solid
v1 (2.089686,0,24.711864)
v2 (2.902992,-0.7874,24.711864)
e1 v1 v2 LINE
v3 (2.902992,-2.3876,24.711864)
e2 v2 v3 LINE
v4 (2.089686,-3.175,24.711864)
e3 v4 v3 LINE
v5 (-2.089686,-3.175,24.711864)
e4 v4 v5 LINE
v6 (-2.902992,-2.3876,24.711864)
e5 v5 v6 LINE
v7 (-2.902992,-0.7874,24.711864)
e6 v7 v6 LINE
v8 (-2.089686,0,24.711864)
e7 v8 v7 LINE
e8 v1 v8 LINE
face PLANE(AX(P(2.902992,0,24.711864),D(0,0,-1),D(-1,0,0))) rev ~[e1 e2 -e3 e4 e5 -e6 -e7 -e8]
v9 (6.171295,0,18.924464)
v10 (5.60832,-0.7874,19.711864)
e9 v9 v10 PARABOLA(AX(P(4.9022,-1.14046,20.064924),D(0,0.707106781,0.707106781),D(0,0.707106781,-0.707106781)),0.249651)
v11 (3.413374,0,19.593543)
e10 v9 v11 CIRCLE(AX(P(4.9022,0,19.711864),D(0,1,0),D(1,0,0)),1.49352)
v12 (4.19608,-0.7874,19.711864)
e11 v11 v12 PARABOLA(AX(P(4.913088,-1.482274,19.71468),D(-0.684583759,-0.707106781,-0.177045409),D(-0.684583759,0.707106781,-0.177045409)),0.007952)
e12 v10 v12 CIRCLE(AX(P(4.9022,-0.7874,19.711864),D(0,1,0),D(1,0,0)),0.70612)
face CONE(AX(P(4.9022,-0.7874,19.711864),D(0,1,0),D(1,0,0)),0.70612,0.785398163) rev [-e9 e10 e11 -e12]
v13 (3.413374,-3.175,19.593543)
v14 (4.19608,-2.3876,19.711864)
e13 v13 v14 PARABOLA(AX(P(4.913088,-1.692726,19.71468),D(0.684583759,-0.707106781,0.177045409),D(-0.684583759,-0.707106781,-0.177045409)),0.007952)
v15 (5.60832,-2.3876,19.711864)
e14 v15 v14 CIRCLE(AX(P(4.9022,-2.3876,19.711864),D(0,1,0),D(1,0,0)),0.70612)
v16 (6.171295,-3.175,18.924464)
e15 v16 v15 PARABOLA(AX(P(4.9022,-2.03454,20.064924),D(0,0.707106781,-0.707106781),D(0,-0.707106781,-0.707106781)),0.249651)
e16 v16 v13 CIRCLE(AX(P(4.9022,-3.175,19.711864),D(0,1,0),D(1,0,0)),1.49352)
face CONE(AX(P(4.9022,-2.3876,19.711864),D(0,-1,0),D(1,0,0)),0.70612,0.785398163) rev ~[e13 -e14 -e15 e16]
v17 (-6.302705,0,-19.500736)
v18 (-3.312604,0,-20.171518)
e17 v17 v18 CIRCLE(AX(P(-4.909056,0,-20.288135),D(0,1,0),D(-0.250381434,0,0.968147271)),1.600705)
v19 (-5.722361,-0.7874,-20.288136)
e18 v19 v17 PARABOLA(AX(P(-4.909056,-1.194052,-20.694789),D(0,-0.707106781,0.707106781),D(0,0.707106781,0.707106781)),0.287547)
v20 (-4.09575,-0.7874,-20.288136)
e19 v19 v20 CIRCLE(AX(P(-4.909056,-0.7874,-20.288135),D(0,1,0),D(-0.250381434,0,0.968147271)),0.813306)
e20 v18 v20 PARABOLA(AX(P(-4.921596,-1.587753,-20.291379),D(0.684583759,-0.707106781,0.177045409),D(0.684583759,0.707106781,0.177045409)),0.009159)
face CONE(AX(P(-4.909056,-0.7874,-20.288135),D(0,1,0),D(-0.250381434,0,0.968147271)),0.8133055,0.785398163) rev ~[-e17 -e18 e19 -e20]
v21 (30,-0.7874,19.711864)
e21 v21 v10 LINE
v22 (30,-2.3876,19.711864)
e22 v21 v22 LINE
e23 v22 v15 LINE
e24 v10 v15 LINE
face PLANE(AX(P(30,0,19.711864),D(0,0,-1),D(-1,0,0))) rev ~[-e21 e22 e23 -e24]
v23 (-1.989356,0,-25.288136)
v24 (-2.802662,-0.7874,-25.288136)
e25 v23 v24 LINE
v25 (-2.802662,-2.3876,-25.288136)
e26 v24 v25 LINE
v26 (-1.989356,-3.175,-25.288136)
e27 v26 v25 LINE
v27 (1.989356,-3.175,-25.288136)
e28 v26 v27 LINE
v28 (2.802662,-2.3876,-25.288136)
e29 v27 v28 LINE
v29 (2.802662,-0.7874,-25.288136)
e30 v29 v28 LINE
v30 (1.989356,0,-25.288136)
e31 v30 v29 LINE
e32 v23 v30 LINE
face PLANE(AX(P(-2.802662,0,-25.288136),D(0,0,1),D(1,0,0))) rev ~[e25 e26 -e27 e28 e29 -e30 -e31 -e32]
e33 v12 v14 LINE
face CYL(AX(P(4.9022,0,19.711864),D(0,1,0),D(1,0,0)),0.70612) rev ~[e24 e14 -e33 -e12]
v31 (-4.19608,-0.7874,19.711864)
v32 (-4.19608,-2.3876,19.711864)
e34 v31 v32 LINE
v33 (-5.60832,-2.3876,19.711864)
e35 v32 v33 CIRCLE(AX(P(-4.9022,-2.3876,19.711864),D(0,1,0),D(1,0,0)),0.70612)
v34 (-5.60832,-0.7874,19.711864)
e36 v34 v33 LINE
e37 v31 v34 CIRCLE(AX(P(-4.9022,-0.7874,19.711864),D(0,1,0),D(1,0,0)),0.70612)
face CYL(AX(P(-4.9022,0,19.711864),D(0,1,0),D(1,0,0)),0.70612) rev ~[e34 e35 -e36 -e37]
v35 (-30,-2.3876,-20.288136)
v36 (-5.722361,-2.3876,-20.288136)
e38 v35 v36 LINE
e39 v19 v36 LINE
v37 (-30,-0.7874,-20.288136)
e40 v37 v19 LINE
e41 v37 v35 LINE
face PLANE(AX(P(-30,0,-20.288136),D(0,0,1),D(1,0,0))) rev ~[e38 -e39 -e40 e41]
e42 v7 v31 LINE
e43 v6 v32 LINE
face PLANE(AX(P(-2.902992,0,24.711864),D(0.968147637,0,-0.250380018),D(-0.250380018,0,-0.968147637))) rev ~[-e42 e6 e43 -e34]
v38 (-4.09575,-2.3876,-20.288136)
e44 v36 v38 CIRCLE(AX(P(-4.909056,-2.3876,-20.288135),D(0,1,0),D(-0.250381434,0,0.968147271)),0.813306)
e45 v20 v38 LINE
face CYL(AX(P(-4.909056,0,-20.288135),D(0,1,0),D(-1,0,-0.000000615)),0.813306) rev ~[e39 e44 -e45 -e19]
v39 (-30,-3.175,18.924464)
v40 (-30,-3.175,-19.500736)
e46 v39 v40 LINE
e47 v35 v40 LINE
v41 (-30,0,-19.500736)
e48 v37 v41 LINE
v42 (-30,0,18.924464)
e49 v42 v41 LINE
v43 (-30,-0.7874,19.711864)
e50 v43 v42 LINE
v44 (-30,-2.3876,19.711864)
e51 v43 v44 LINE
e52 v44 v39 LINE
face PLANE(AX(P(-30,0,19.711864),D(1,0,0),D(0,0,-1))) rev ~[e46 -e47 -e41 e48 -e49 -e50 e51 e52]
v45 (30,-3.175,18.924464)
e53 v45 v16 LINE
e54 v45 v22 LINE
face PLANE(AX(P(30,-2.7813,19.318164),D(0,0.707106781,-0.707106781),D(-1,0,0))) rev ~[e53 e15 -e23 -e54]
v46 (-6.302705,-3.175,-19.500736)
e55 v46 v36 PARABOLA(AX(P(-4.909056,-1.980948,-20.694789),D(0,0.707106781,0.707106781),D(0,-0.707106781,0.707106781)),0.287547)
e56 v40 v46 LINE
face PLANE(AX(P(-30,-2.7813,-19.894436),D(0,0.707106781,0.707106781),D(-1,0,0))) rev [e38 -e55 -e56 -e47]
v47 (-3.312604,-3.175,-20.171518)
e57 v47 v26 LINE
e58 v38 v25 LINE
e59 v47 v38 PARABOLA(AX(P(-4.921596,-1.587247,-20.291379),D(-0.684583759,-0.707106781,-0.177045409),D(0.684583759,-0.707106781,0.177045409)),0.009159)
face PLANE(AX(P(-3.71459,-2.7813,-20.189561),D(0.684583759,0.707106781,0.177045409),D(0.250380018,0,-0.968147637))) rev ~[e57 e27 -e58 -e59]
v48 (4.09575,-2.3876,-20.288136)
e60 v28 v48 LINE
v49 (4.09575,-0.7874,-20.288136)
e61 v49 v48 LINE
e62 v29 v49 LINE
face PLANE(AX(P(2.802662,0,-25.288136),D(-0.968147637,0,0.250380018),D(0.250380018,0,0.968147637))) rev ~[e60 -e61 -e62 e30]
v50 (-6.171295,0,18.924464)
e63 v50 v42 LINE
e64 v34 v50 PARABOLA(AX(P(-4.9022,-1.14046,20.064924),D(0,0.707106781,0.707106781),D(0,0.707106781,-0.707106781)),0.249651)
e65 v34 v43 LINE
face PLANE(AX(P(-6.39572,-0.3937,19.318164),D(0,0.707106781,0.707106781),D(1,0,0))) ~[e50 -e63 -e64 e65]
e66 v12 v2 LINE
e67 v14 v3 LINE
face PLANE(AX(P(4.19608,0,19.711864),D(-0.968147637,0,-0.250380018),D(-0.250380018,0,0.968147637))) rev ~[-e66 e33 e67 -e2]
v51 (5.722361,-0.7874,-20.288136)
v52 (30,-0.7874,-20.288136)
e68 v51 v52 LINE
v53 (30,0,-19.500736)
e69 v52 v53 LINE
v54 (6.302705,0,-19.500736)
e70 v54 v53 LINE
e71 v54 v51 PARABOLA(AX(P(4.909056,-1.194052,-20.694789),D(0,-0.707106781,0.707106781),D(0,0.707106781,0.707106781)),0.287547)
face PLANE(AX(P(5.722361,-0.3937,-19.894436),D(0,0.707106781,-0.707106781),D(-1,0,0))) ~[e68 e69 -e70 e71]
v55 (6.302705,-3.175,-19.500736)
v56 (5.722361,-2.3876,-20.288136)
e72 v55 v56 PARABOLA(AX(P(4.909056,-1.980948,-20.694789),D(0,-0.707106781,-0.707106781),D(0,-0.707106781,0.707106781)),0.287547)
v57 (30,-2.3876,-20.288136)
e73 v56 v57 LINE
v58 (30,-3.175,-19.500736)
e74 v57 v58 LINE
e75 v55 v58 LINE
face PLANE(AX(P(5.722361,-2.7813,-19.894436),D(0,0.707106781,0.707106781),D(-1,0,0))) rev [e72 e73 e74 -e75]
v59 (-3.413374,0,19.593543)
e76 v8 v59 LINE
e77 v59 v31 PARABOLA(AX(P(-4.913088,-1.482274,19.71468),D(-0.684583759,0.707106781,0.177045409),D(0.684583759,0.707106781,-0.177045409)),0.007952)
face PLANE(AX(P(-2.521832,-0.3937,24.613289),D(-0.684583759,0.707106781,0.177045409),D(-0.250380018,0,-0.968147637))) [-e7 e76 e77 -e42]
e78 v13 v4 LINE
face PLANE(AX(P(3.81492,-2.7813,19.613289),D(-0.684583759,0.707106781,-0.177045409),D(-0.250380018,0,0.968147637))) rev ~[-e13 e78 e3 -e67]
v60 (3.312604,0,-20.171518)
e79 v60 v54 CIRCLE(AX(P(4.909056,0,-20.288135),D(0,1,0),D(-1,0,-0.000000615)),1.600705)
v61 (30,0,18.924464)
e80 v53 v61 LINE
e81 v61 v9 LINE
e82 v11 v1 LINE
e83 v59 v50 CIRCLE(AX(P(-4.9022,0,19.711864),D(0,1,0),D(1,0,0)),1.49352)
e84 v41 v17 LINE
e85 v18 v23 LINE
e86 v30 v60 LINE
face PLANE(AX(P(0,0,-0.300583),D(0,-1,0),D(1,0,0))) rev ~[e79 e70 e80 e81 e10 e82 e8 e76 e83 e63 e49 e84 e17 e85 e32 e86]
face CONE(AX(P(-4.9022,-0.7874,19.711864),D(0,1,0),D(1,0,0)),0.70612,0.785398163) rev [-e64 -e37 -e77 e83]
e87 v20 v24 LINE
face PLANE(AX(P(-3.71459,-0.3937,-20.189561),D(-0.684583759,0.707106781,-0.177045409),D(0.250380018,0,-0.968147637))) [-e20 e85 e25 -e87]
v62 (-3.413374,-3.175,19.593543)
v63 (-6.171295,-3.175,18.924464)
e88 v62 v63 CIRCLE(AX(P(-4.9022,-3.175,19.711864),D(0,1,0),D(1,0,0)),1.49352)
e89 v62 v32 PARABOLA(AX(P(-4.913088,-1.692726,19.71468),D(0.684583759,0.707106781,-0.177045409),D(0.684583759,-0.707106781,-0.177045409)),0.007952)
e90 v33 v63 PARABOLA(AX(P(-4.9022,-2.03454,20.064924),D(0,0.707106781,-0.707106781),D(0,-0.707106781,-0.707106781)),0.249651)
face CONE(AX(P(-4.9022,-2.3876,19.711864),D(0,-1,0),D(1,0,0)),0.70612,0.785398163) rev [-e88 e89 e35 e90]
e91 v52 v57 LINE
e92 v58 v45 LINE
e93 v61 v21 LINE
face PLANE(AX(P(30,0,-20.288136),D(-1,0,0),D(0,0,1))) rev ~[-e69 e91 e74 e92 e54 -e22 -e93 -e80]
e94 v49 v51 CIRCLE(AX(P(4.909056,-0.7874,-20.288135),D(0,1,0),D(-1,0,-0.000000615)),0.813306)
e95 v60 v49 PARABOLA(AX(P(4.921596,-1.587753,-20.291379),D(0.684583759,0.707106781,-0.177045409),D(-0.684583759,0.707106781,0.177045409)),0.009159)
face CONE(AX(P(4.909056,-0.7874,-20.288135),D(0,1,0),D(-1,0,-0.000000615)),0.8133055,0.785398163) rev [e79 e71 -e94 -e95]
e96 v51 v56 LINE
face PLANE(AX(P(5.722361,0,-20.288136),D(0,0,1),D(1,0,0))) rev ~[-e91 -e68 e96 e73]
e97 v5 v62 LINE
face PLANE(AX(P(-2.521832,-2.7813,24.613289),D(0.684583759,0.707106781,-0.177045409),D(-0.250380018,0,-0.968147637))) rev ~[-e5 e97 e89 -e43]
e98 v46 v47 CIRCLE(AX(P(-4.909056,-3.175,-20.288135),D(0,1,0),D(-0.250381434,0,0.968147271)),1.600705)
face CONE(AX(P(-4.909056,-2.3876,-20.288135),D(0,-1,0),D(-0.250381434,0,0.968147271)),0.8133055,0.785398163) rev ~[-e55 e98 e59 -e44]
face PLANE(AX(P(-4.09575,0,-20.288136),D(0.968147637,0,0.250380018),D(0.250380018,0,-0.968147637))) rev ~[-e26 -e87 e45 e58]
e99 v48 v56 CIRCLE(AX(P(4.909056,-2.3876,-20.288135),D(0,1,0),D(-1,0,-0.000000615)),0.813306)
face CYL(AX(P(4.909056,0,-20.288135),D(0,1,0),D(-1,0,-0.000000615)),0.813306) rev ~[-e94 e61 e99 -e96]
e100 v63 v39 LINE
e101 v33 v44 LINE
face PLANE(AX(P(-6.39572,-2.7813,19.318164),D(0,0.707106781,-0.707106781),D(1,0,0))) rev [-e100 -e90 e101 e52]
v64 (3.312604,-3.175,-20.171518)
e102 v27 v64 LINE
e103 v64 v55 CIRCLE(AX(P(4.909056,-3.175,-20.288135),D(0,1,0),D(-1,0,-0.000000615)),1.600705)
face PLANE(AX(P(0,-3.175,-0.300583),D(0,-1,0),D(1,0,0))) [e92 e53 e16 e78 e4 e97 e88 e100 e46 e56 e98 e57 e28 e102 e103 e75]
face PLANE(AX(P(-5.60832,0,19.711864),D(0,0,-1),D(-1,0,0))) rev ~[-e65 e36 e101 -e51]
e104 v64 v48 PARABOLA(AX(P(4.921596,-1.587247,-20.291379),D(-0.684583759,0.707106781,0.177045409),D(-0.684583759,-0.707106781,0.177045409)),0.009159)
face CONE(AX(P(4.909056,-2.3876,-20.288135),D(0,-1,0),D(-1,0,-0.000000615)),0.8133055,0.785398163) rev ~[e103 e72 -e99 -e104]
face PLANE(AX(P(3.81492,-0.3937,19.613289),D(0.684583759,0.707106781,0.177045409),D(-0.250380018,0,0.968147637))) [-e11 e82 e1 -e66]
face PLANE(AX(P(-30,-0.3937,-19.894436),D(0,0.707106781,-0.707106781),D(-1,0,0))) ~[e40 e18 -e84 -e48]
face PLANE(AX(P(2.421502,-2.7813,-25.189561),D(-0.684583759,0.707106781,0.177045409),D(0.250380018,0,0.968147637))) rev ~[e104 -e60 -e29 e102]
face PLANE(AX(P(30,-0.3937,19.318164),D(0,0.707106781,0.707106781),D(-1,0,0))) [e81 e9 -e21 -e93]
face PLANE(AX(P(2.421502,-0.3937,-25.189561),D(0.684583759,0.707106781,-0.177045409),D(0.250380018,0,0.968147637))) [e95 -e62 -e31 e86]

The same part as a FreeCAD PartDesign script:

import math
import FreeCAD as App
import Part
import Sketcher
from FreeCAD import Vector
Q = App.Units.Quantity


def edges_at(feature, points):
    """Names of the edges that pass closest to the given points."""
    edges = feature.Shape.Edges
    near = lambda p: min(range(len(edges)), key=lambda i: edges[i].distToShape(Part.Vertex(*p))[0])
    return sorted({f"Edge{near(p) + 1}" for p in points})

doc = App.newDocument("Part")
body = doc.addObject("PartDesign::Body", "Body")

sketch1 = body.newObject("Sketcher::SketchObject", "Sketch")
sketch1.AttachmentSupport = (doc.getObject("XZ_Plane"), [""])
sketch1.MapMode = "FlatFace"
sketch1.addGeometry(Part.LineSegment(Vector(-30, 19.7, 0), Vector(-30, -20.3, 0)), False)
sketch1.addGeometry(Part.LineSegment(Vector(-30, -20.3, 0), Vector(-5.7, -20.3, 0)), False)
sketch1.addGeometry(Part.ArcOfCircle(Part.Circle(Vector(-4.9, -20.3, 0), Vector(0, 0, 1), 0.8), math.radians(0), math.radians(180)), False)
sketch1.addGeometry(Part.LineSegment(Vector(-4.1, -20.3, 0), Vector(-2.8, -25.3, 0)), False)
sketch1.addGeometry(Part.LineSegment(Vector(-2.8, -25.3, 0), Vector(2.8, -25.3, 0)), False)
sketch1.addGeometry(Part.LineSegment(Vector(2.8, -25.3, 0), Vector(4.1, -20.3, 0)), False)
sketch1.addGeometry(Part.ArcOfCircle(Part.Circle(Vector(4.9, -20.3, 0), Vector(0, 0, 1), 0.8), math.radians(0), math.radians(180)), False)
sketch1.addGeometry(Part.LineSegment(Vector(5.7, -20.3, 0), Vector(30, -20.3, 0)), False)
sketch1.addGeometry(Part.LineSegment(Vector(30, -20.3, 0), Vector(30, 19.7, 0)), False)
sketch1.addGeometry(Part.LineSegment(Vector(30, 19.7, 0), Vector(5.6, 19.7, 0)), False)
sketch1.addGeometry(Part.ArcOfCircle(Part.Circle(Vector(4.9, 19.7, 0), Vector(0, 0, 1), 0.7), math.radians(180), math.radians(360)), False)
sketch1.addGeometry(Part.LineSegment(Vector(4.2, 19.7, 0), Vector(2.9, 24.7, 0)), False)
sketch1.addGeometry(Part.LineSegment(Vector(2.9, 24.7, 0), Vector(-2.9, 24.7, 0)), False)
sketch1.addGeometry(Part.LineSegment(Vector(-2.9, 24.7, 0), Vector(-4.2, 19.7, 0)), False)
sketch1.addGeometry(Part.ArcOfCircle(Part.Circle(Vector(-4.9, 19.7, 0), Vector(0, 0, 1), 0.7), math.radians(180), math.radians(360)), False)
sketch1.addGeometry(Part.LineSegment(Vector(-5.6, 19.7, 0), Vector(-30, 19.7, 0)), False)
sketch1.addConstraint(Sketcher.Constraint("Coincident", 0, 2, 1, 1))
sketch1.addConstraint(Sketcher.Constraint("Coincident", 1, 2, 2, 2))
sketch1.addConstraint(Sketcher.Constraint("Coincident", 2, 1, 3, 1))
sketch1.addConstraint(Sketcher.Constraint("Coincident", 3, 2, 4, 1))
sketch1.addConstraint(Sketcher.Constraint("Coincident", 4, 2, 5, 1))
sketch1.addConstraint(Sketcher.Constraint("Coincident", 5, 2, 6, 2))
sketch1.addConstraint(Sketcher.Constraint("Coincident", 6, 1, 7, 1))
sketch1.addConstraint(Sketcher.Constraint("Coincident", 7, 2, 8, 1))
sketch1.addConstraint(Sketcher.Constraint("Coincident", 8, 2, 9, 1))
sketch1.addConstraint(Sketcher.Constraint("Coincident", 9, 2, 10, 2))
sketch1.addConstraint(Sketcher.Constraint("Coincident", 10, 1, 11, 1))
sketch1.addConstraint(Sketcher.Constraint("Coincident", 11, 2, 12, 1))
sketch1.addConstraint(Sketcher.Constraint("Coincident", 12, 2, 13, 1))
sketch1.addConstraint(Sketcher.Constraint("Coincident", 13, 2, 14, 2))
sketch1.addConstraint(Sketcher.Constraint("Coincident", 14, 1, 15, 1))
sketch1.addConstraint(Sketcher.Constraint("Coincident", 15, 2, 0, 1))
sketch1.addConstraint(Sketcher.Constraint("Vertical", 0))
sketch1.addConstraint(Sketcher.Constraint("Horizontal", 1))
sketch1.addConstraint(Sketcher.Constraint("Horizontal", 4))
sketch1.addConstraint(Sketcher.Constraint("Horizontal", 7))
sketch1.addConstraint(Sketcher.Constraint("Vertical", 8))
sketch1.addConstraint(Sketcher.Constraint("Horizontal", 9))
sketch1.addConstraint(Sketcher.Constraint("Horizontal", 12))
sketch1.addConstraint(Sketcher.Constraint("Horizontal", 15))
sketch1.addConstraint(Sketcher.Constraint("Equal", 2, 6))
sketch1.addConstraint(Sketcher.Constraint("Equal", 10, 14))
sketch1.addConstraint(Sketcher.Constraint("Symmetric", 2, 3, 6, 3, -2))
sketch1.addConstraint(Sketcher.Constraint("Symmetric", 10, 3, 14, 3, -2))
sketch1.addConstraint(Sketcher.Constraint("Symmetric", 0, 2, 7, 2, -2))
sketch1.addConstraint(Sketcher.Constraint("Parallel", 3, 11))
sketch1.addConstraint(Sketcher.Constraint("Parallel", 5, 13))
sketch1.addConstraint(Sketcher.Constraint("Horizontal", 6, 3, 0, 2))
sketch1.addConstraint(Sketcher.Constraint("Horizontal", 1, 2, 2, 1))
sketch1.addConstraint(Sketcher.Constraint("Horizontal", 2, 1, 5, 2))
sketch1.addConstraint(Sketcher.Constraint("Horizontal", 14, 3, 8, 2))
sketch1.addConstraint(Sketcher.Constraint("Horizontal", 9, 2, 10, 1))
sketch1.addConstraint(Sketcher.Constraint("Horizontal", 10, 1, 13, 2))
sketch1.addConstraint(Sketcher.Constraint("Horizontal", 13, 2, 14, 1))
sketch1.addConstraint(Sketcher.Constraint("Equal", 3, 5))
sketch1.addConstraint(Sketcher.Constraint("Equal", 5, 11))
sketch1.addConstraint(Sketcher.Constraint("Angle", 3, Q("-75.499999 deg")))
sketch1.addConstraint(Sketcher.Constraint("Radius", 10, Q("0.0278 in")))
sketch1.addConstraint(Sketcher.Constraint("DistanceX", -1, 1, 10, 3, Q("0.193 in")))
sketch1.addConstraint(Sketcher.Constraint("DistanceY", 0, 2, 0, 1, Q("40 mm")))
sketch1.addConstraint(Sketcher.Constraint("Radius", 2, Q("0.813306 mm")))
sketch1.addConstraint(Sketcher.Constraint("DistanceX", 2, 1, 5, 2, Q("0.3225 in")))
sketch1.addConstraint(Sketcher.Constraint("Distance", 3, Q("5.164502 mm")))
sketch1.addConstraint(Sketcher.Constraint("DistanceX", 1, 1, 1, 2, Q("24.277639 mm")))
sketch1.addConstraint(Sketcher.Constraint("DistanceY", 2, 3, -1, 1, Q("20.288135 mm")))
pad1 = body.newObject("PartDesign::Pad", "Pad")
pad1.Profile = sketch1
pad1.Length = Q("0.125 in")
doc.recompute()

chamfer = body.newObject("PartDesign::Chamfer", "Chamfer")
chamfer.Base = (pad1, edges_at(pad1, [
    (-17.861, 0, -20.288),
    (17.861, 0, -20.288),
    (17.861, -3.175, -20.288),
    (-17.861, -3.175, -20.288),
]))
chamfer.Size = Q("0.031 in")
doc.recompute()

chamfer2 = body.newObject("PartDesign::Chamfer", "Chamfer001")
chamfer2.Base = (chamfer, edges_at(chamfer, [
    (3.55, 0, 22.212),
    (4.902, 0, 19.006),
    (-3.55, 0, 22.212),
    (-4.902, 0, 19.006),
]))
chamfer2.Size = Q("0.031 in")
doc.recompute()

chamfer3 = body.newObject("PartDesign::Chamfer", "Chamfer002")
chamfer3.Base = (chamfer2, edges_at(chamfer2, [
    (4.902, -3.175, 19.006),
    (3.55, -3.175, 22.212),
    (-3.55, -3.175, 22.212),
    (-4.902, -3.175, 19.006),
]))
chamfer3.Size = Q("0.031 in")
doc.recompute()

chamfer4 = body.newObject("PartDesign::Chamfer", "Chamfer003")
chamfer4.Base = (chamfer3, edges_at(chamfer3, [
    (18.198, -3.175, 19.712),
    (-18.198, -3.175, 19.712),
    (18.198, 0, 19.712),
    (-18.198, 0, 19.712),
]))
chamfer4.Size = Q("0.031 in")
doc.recompute()

chamfer5 = body.newObject("PartDesign::Chamfer", "Chamfer004")
chamfer5.Base = (chamfer4, edges_at(chamfer4, [
    (3.449, -3.175, -22.788),
    (4.411, -3.175, -19.645),
    (-3.449, -3.175, -22.788),
    (-4.411, -3.175, -19.645),
]))
chamfer5.Size = Q("0.031 in")
doc.recompute()

chamfer6 = body.newObject("PartDesign::Chamfer", "Chamfer005")
chamfer6.Base = (chamfer5, edges_at(chamfer5, [
    (3.449, 0, -22.788),
    (4.411, 0, -19.645),
    (-3.449, 0, -22.788),
    (-4.411, 0, -19.645),
]))
chamfer6.Size = Q("0.031 in")

doc.recompute()
